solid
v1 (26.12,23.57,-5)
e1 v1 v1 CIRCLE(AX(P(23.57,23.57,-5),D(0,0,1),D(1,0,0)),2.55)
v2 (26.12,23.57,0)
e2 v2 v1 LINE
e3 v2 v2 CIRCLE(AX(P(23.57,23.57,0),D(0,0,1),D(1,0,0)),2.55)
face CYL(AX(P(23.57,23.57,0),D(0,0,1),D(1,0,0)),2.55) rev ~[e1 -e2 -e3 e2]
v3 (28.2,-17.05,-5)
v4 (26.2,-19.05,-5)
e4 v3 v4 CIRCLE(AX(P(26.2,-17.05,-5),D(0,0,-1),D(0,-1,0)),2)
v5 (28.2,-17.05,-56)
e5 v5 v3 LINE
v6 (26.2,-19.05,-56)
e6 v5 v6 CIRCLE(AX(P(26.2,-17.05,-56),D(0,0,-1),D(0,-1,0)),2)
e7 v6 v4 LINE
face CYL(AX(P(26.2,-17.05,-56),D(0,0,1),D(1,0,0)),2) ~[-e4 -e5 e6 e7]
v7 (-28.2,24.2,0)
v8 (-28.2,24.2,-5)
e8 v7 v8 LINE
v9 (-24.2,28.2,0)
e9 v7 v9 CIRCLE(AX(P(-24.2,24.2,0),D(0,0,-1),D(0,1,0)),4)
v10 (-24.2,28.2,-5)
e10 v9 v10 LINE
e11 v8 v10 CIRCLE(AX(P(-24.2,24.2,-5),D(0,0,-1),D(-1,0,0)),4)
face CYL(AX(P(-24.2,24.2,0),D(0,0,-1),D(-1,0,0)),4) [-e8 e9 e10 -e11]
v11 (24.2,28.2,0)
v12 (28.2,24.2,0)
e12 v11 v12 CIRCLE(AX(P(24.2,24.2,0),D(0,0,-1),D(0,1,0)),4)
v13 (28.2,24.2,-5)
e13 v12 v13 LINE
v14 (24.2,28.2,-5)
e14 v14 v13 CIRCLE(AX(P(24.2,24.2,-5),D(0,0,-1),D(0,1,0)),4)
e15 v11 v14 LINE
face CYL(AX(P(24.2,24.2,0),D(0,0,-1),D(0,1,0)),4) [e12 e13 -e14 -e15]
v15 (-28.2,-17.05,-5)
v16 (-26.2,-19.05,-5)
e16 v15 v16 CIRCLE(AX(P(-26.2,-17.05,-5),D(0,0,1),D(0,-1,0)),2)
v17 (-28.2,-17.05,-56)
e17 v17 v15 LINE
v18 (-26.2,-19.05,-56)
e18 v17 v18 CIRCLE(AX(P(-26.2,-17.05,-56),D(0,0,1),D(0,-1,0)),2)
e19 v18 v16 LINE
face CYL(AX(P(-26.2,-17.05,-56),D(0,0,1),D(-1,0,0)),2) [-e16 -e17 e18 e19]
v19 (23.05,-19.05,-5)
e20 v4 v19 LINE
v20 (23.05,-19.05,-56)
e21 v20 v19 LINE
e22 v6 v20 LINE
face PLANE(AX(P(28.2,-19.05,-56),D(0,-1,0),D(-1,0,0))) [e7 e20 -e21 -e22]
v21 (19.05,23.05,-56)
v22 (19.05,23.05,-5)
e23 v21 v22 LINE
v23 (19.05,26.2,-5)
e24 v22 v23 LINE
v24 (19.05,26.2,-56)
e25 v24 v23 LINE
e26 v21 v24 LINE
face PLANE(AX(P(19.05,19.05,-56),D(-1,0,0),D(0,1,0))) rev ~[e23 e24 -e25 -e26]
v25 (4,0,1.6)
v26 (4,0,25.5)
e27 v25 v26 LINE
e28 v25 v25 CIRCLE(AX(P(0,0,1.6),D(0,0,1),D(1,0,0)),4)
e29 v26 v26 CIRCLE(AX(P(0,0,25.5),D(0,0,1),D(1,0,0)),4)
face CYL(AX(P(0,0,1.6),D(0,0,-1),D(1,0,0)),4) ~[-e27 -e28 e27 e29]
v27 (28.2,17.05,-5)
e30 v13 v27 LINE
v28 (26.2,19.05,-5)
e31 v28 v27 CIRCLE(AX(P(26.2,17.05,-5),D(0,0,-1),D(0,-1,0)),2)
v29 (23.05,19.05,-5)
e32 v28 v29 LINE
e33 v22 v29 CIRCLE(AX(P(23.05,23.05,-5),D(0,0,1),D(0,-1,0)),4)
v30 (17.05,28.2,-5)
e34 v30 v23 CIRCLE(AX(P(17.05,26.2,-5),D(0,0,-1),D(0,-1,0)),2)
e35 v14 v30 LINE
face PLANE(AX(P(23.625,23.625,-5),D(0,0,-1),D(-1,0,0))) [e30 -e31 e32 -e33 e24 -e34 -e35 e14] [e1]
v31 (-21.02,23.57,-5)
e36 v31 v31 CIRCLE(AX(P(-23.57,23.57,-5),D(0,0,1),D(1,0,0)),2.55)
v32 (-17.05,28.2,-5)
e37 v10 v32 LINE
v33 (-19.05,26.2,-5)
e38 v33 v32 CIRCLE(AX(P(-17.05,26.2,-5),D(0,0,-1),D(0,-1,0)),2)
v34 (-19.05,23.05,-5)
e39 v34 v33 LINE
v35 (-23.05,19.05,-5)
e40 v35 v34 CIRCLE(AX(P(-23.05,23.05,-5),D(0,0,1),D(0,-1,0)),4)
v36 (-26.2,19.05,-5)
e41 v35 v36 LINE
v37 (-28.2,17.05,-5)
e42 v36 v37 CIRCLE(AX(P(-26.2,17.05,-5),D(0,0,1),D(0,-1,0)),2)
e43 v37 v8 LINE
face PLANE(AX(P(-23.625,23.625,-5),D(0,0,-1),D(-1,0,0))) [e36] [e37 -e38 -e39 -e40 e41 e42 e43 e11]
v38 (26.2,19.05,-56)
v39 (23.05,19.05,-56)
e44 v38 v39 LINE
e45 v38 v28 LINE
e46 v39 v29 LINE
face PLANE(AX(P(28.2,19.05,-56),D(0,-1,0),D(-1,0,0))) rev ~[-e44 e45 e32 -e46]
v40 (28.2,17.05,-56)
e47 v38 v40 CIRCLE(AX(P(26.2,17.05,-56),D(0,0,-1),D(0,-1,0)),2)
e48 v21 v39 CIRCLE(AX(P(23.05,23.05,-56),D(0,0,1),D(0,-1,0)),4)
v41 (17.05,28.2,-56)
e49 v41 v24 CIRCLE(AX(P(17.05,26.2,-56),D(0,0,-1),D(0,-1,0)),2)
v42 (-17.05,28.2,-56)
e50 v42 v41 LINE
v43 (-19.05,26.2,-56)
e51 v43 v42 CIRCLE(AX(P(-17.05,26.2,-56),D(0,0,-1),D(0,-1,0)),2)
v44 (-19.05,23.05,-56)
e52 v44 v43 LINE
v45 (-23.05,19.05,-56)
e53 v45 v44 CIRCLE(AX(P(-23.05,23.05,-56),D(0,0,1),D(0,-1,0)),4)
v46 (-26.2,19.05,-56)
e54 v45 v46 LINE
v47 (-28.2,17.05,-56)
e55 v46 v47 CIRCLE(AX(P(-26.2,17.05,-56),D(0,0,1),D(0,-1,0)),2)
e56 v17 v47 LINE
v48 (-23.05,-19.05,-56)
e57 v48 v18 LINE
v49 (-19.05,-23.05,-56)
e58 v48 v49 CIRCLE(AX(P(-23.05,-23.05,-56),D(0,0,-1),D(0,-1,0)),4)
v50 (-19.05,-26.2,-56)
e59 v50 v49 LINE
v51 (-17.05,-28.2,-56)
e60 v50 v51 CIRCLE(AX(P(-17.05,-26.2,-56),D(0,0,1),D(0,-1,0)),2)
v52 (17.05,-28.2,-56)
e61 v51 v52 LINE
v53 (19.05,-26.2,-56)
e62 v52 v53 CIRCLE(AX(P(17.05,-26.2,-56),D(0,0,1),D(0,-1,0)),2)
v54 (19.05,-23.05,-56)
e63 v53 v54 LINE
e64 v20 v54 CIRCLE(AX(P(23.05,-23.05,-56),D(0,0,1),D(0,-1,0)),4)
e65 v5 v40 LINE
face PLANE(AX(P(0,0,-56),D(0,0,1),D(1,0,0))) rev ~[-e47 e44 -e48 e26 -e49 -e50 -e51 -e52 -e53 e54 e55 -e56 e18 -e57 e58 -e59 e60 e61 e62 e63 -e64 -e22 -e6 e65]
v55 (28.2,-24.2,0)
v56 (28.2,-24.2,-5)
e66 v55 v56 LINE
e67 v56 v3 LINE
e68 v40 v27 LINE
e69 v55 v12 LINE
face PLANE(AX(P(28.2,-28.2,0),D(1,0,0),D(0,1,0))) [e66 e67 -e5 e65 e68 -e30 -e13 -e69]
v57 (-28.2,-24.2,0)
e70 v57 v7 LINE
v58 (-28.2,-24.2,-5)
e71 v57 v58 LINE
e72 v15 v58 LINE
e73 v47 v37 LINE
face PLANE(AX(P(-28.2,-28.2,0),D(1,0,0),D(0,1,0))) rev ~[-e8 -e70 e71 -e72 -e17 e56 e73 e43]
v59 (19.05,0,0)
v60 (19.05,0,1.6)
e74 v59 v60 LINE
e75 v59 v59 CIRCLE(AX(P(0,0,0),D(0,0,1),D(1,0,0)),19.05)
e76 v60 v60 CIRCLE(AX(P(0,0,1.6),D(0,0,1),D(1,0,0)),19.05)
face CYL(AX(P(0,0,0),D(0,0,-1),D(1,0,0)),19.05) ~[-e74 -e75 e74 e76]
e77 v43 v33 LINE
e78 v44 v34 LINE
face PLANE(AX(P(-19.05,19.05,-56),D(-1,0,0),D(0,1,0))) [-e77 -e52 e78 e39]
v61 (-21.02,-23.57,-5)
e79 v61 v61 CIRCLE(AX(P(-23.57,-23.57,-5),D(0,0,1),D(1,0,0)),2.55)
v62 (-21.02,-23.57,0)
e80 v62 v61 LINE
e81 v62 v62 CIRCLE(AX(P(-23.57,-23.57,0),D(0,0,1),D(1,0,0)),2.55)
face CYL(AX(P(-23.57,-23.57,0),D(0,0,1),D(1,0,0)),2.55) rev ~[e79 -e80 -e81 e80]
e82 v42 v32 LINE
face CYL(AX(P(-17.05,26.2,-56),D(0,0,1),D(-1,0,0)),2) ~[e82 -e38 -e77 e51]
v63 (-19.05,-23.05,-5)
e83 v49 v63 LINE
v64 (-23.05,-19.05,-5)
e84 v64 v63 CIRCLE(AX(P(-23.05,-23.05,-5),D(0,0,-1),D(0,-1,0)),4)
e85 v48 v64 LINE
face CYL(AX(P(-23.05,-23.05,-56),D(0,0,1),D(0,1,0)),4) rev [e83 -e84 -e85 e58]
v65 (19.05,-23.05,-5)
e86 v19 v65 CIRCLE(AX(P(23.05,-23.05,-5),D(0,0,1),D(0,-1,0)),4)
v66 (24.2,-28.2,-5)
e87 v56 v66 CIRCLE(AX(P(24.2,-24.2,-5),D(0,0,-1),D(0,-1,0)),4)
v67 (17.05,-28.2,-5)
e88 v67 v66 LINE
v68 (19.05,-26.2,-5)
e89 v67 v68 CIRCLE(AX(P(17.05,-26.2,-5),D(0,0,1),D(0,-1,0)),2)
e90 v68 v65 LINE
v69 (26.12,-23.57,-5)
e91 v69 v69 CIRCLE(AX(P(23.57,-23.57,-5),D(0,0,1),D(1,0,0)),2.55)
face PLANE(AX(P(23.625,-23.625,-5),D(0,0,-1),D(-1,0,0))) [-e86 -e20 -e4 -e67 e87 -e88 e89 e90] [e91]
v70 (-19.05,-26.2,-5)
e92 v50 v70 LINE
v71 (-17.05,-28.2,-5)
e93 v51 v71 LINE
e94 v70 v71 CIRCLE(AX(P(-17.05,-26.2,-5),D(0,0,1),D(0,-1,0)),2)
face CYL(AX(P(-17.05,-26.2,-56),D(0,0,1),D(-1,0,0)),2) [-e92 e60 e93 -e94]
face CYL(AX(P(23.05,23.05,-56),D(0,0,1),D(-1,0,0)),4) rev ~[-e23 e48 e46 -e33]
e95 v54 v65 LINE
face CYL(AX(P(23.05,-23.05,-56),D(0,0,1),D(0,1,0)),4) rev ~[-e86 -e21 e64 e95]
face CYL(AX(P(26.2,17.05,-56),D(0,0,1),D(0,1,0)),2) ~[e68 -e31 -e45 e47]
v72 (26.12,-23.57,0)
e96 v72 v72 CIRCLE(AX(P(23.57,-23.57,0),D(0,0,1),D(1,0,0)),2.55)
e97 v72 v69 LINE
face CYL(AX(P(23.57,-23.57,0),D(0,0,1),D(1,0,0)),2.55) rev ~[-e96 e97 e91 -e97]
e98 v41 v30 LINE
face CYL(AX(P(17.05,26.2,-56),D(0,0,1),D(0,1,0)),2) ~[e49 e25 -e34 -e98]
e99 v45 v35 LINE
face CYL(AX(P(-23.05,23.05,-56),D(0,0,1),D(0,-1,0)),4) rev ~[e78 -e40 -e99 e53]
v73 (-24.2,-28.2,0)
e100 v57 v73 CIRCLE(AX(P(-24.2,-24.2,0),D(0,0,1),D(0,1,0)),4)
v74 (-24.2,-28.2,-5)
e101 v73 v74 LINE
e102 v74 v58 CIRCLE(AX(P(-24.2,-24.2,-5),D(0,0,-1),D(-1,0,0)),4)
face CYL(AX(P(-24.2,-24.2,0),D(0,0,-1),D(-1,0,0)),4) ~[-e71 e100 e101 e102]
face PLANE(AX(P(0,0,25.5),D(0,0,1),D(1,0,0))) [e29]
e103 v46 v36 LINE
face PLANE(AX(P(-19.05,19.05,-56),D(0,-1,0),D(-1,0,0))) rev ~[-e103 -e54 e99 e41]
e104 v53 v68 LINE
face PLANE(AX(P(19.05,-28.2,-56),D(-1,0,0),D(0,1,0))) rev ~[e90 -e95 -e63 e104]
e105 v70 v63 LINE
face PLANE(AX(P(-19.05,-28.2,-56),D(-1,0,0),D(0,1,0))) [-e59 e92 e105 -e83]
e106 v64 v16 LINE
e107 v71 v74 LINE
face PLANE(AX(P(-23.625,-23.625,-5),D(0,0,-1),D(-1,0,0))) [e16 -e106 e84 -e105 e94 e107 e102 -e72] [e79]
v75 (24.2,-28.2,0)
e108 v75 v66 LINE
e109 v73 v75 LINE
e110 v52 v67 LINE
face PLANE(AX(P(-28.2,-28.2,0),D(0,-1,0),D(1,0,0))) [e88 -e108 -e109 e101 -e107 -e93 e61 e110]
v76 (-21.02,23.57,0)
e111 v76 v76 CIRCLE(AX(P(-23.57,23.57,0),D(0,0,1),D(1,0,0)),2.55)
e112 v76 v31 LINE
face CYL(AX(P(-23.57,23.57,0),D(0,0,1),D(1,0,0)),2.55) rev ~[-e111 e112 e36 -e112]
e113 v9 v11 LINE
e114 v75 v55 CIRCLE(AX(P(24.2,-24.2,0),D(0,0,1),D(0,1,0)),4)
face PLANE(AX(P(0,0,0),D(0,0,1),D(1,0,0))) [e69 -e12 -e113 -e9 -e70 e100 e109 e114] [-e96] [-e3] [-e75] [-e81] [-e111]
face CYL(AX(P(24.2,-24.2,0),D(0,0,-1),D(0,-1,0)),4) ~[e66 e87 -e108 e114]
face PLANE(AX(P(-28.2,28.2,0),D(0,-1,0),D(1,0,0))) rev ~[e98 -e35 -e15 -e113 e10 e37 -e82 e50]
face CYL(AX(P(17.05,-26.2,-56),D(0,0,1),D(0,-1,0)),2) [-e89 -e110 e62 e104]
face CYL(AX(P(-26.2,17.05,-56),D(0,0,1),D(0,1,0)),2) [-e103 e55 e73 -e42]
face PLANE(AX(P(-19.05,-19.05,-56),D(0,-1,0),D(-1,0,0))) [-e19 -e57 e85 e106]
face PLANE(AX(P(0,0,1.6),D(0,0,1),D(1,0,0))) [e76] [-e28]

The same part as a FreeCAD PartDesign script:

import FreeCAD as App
import Part
import Sketcher

V = App.Vector


def edges_at(feature, points):
    """Names of the edges that pass closest to the given points."""
    edges = feature.Shape.Edges
    near = lambda p: min(range(len(edges)), key=lambda i: edges[i].distToShape(Part.Vertex(*p))[0])
    return sorted({f"Edge{near(p) + 1}" for p in points})

doc = App.newDocument("Part")
body = doc.addObject("PartDesign::Body", "Body")

# Sketch on XY plane
sketch1 = body.newObject("Sketcher::SketchObject", "Sketch")
sketch1.AttachmentSupport = (doc.getObject("XY_Plane"), [""])
sketch1.MapMode = "FlatFace"
sketch1.addGeometry(Part.LineSegment(V(-28.2, 28.2, 0), V(-28.2, -28.2, 0)), False)
sketch1.addGeometry(Part.LineSegment(V(-28.2, -28.2, 0), V(28.2, -28.2, 0)), False)
sketch1.addGeometry(Part.LineSegment(V(28.2, -28.2, 0), V(28.2, 28.2, 0)), False)
sketch1.addGeometry(Part.LineSegment(V(28.2, 28.2, 0), V(-28.2, 28.2, 0)), False)
sketch1.addConstraint(Sketcher.Constraint("Coincident", 0, 2, 1, 1))
sketch1.addConstraint(Sketcher.Constraint("Coincident", 1, 2, 2, 1))
sketch1.addConstraint(Sketcher.Constraint("Coincident", 2, 2, 3, 1))
sketch1.addConstraint(Sketcher.Constraint("Coincident", 3, 2, 0, 1))
sketch1.addConstraint(Sketcher.Constraint("Vertical", 0))
sketch1.addConstraint(Sketcher.Constraint("Horizontal", 1))
sketch1.addConstraint(Sketcher.Constraint("Vertical", 2))
sketch1.addConstraint(Sketcher.Constraint("Horizontal", 3))
sketch1.addConstraint(Sketcher.Constraint("Symmetric", 0, 2, 2, 2, -1, 1))
sketch1.addConstraint(Sketcher.Constraint("Equal", 3, 0))
sketch1.addConstraint(Sketcher.Constraint("DistanceX", 1, 1, 1, 2, 56.4))
pad1 = body.newObject("PartDesign::Pad", "Pad")
pad1.Profile = sketch1
pad1.Length = 56
pad1.Reversed = True

# Sketch on XY plane
sketch2 = body.newObject("Sketcher::SketchObject", "Sketch001")
sketch2.AttachmentSupport = (doc.getObject("XY_Plane"), [""])
sketch2.MapMode = "FlatFace"
sketch2.addGeometry(Part.Circle(V(-23.57, 23.57, 0), V(0, 0, 1), 2.55), False)
sketch2.addGeometry(Part.Circle(V(23.57, 23.57, 0), V(0, 0, 1), 2.55), False)
sketch2.addGeometry(Part.Circle(V(23.57, -23.57, 0), V(0, 0, 1), 2.55), False)
sketch2.addGeometry(Part.Circle(V(-23.57, -23.57, 0), V(0, 0, 1), 2.55), False)
sketch2.addConstraint(Sketcher.Constraint("Equal", 0, 1))
sketch2.addConstraint(Sketcher.Constraint("Equal", 1, 2))
sketch2.addConstraint(Sketcher.Constraint("Equal", 2, 3))
sketch2.addConstraint(Sketcher.Constraint("Symmetric", 0, 3, 2, 3, -1, 1))
sketch2.addConstraint(Sketcher.Constraint("Symmetric", 1, 3, 3, 3, -1, 1))
sketch2.addConstraint(Sketcher.Constraint("Symmetric", 0, 3, 1, 3, -2))
sketch2.addConstraint(Sketcher.Constraint("Diameter", 0, 5.1))
sketch2.addConstraint(Sketcher.Constraint("DistanceX", 0, 3, -1, 1, 23.57))
sketch2.addConstraint(Sketcher.Constraint("DistanceY", -1, 1, 0, 3, 23.57))
pocket1 = body.newObject("PartDesign::Pocket", "Pocket")
pocket1.Profile = sketch2
pocket1.Length = 6

# Sketch on XY plane
sketch3 = body.newObject("Sketcher::SketchObject", "Sketch002")
sketch3.AttachmentSupport = (doc.getObject("XY_Plane"), [""])
sketch3.MapMode = "FlatFace"
sketch3.addGeometry(Part.Circle(V(0, 0, 0), V(0, 0, 1), 19.05), False)
sketch3.addConstraint(Sketcher.Constraint("Coincident", 0, 3, -1, 1))
sketch3.addConstraint(Sketcher.Constraint("Diameter", 0, 38.1))
pad2 = body.newObject("PartDesign::Pad", "Pad001")
pad2.Profile = sketch3
pad2.Length = 1.6

# Sketch on XY plane
sketch4 = body.newObject("Sketcher::SketchObject", "Sketch003")
sketch4.AttachmentSupport = (doc.getObject("XY_Plane"), [""])
sketch4.MapMode = "FlatFace"
sketch4.AttachmentOffset = App.Placement(V(0, 0, 1.6), App.Rotation())
sketch4.addGeometry(Part.Circle(V(0, 0, 0), V(0, 0, 1), 4), False)
sketch4.addConstraint(Sketcher.Constraint("Coincident", 0, 3, -1, 1))
sketch4.addConstraint(Sketcher.Constraint("Diameter", 0, 8.0))
pad3 = body.newObject("PartDesign::Pad", "Pad002")
pad3.Profile = sketch4
pad3.Length = 23.9
doc.recompute()

fillet = body.newObject("PartDesign::Fillet", "Fillet")
fillet.Base = (pad3, edges_at(pad3, [
    (28.2, -28.2, -28),
    (-28.2, -28.2, -28),
    (-28.2, 28.2, -28),
    (28.2, 28.2, -28),
]))
fillet.Radius = 4

# Sketch on XY plane
sketch5 = body.newObject("Sketcher::SketchObject", "Sketch004")
sketch5.AttachmentSupport = (doc.getObject("XY_Plane"), [""])
sketch5.MapMode = "FlatFace"
sketch5.AttachmentOffset = App.Placement(V(0, 0, -56), App.Rotation())
sketch5.addGeometry(Part.LineSegment(V(28.2, 28.2, 0), V(28.2, 19.05, 0)), False)
sketch5.addGeometry(Part.LineSegment(V(28.2, 19.05, 0), V(19.05, 19.05, 0)), False)
sketch5.addGeometry(Part.LineSegment(V(19.05, 19.05, 0), V(19.05, 28.2, 0)), False)
sketch5.addGeometry(Part.LineSegment(V(19.05, 28.2, 0), V(28.2, 28.2, 0)), False)
sketch5.addGeometry(Part.LineSegment(V(-19.05, 28.2, 0), V(-19.05, 19.05, 0)), False)
sketch5.addGeometry(Part.LineSegment(V(-19.05, 19.05, 0), V(-28.2, 19.05, 0)), False)
sketch5.addGeometry(Part.LineSegment(V(-28.2, 19.05, 0), V(-28.2, 28.2, 0)), False)
sketch5.addGeometry(Part.LineSegment(V(-28.2, 28.2, 0), V(-19.05, 28.2, 0)), False)
sketch5.addGeometry(Part.LineSegment(V(-19.05, -19.05, 0), V(-19.05, -28.2, 0)), False)
sketch5.addGeometry(Part.LineSegment(V(-19.05, -28.2, 0), V(-28.2, -28.2, 0)), False)
sketch5.addGeometry(Part.LineSegment(V(-28.2, -28.2, 0), V(-28.2, -19.05, 0)), False)
sketch5.addGeometry(Part.LineSegment(V(-28.2, -19.05, 0), V(-19.05, -19.05, 0)), False)
sketch5.addGeometry(Part.LineSegment(V(28.2, -19.05, 0), V(28.2, -28.2, 0)), False)
sketch5.addGeometry(Part.LineSegment(V(28.2, -28.2, 0), V(19.05, -28.2, 0)), False)
sketch5.addGeometry(Part.LineSegment(V(19.05, -28.2, 0), V(19.05, -19.05, 0)), False)
sketch5.addGeometry(Part.LineSegment(V(19.05, -19.05, 0), V(28.2, -19.05, 0)), False)
sketch5.addConstraint(Sketcher.Constraint("Coincident", 0, 2, 1, 1))
sketch5.addConstraint(Sketcher.Constraint("Coincident", 1, 2, 2, 1))
sketch5.addConstraint(Sketcher.Constraint("Coincident", 2, 2, 3, 1))
sketch5.addConstraint(Sketcher.Constraint("Coincident", 3, 2, 0, 1))
sketch5.addConstraint(Sketcher.Constraint("Coincident", 4, 2, 5, 1))
sketch5.addConstraint(Sketcher.Constraint("Coincident", 5, 2, 6, 1))
sketch5.addConstraint(Sketcher.Constraint("Coincident", 6, 2, 7, 1))
sketch5.addConstraint(Sketcher.Constraint("Coincident", 7, 2, 4, 1))
sketch5.addConstraint(Sketcher.Constraint("Coincident", 8, 2, 9, 1))
sketch5.addConstraint(Sketcher.Constraint("Coincident", 9, 2, 10, 1))
sketch5.addConstraint(Sketcher.Constraint("Coincident", 10, 2, 11, 1))
sketch5.addConstraint(Sketcher.Constraint("Coincident", 11, 2, 8, 1))
sketch5.addConstraint(Sketcher.Constraint("Coincident", 12, 2, 13, 1))
sketch5.addConstraint(Sketcher.Constraint("Coincident", 13, 2, 14, 1))
sketch5.addConstraint(Sketcher.Constraint("Coincident", 14, 2, 15, 1))
sketch5.addConstraint(Sketcher.Constraint("Coincident", 15, 2, 12, 1))
sketch5.addConstraint(Sketcher.Constraint("Vertical", 0))
sketch5.addConstraint(Sketcher.Constraint("Horizontal", 1))
sketch5.addConstraint(Sketcher.Constraint("Vertical", 2))
sketch5.addConstraint(Sketcher.Constraint("Horizontal", 3))
sketch5.addConstraint(Sketcher.Constraint("Vertical", 4))
sketch5.addConstraint(Sketcher.Constraint("Horizontal", 5))
sketch5.addConstraint(Sketcher.Constraint("Vertical", 6))
sketch5.addConstraint(Sketcher.Constraint("Horizontal", 7))
sketch5.addConstraint(Sketcher.Constraint("Vertical", 8))
sketch5.addConstraint(Sketcher.Constraint("Horizontal", 9))
sketch5.addConstraint(Sketcher.Constraint("Vertical", 10))
sketch5.addConstraint(Sketcher.Constraint("Horizontal", 11))
sketch5.addConstraint(Sketcher.Constraint("Vertical", 12))
sketch5.addConstraint(Sketcher.Constraint("Horizontal", 13))
sketch5.addConstraint(Sketcher.Constraint("Vertical", 14))
sketch5.addConstraint(Sketcher.Constraint("Horizontal", 15))
sketch5.addConstraint(Sketcher.Constraint("Symmetric", 2, 2, 8, 2, -1, 1))
sketch5.addConstraint(Sketcher.Constraint("Symmetric", 0, 2, 10, 2, -1, 1))
sketch5.addConstraint(Sketcher.Constraint("Symmetric", 6, 2, 12, 2, -1, 1))
sketch5.addConstraint(Sketcher.Constraint("Symmetric", 4, 2, 14, 2, -1, 1))
sketch5.addConstraint(Sketcher.Constraint("Symmetric", 1, 2, 4, 2, -2))
sketch5.addConstraint(Sketcher.Constraint("Symmetric", 3, 2, 6, 2, -2))
sketch5.addConstraint(Sketcher.Constraint("Equal", 15, 0))
sketch5.addConstraint(Sketcher.Constraint("DistanceX", 1, 2, 1, 1, 9.15))
sketch5.addConstraint(Sketcher.Constraint("DistanceX", -1, 1, 0, 2, 28.2))
sketch5.addConstraint(Sketcher.Constraint("DistanceY", -1, 1, 2, 2, 28.2))
pocket2 = body.newObject("PartDesign::Pocket", "Pocket001")
pocket2.Profile = sketch5
pocket2.Length = 51
pocket2.Reversed = True
doc.recompute()

fillet2 = body.newObject("PartDesign::Fillet", "Fillet001")
fillet2.Base = (pocket2, edges_at(pocket2, [
    (-19.05, 19.05, -30.5),
    (19.05, 19.05, -30.5),
    (19.05, -19.05, -30.5),
    (-19.05, -19.05, -30.5),
]))
fillet2.Radius = 4
doc.recompute()

fillet3 = body.newObject("PartDesign::Fillet", "Fillet002")
fillet3.Base = (fillet2, edges_at(fillet2, [
    (-28.2, 19.05, -30.5),
    (-19.05, 28.2, -30.5),
    (28.2, 19.05, -30.5),
    (19.05, 28.2, -30.5),
    (28.2, -19.05, -30.5),
    (19.05, -28.2, -30.5),
    (-28.2, -19.05, -30.5),
    (-19.05, -28.2, -30.5),
]))
fillet3.Radius = 2

doc.recompute()
